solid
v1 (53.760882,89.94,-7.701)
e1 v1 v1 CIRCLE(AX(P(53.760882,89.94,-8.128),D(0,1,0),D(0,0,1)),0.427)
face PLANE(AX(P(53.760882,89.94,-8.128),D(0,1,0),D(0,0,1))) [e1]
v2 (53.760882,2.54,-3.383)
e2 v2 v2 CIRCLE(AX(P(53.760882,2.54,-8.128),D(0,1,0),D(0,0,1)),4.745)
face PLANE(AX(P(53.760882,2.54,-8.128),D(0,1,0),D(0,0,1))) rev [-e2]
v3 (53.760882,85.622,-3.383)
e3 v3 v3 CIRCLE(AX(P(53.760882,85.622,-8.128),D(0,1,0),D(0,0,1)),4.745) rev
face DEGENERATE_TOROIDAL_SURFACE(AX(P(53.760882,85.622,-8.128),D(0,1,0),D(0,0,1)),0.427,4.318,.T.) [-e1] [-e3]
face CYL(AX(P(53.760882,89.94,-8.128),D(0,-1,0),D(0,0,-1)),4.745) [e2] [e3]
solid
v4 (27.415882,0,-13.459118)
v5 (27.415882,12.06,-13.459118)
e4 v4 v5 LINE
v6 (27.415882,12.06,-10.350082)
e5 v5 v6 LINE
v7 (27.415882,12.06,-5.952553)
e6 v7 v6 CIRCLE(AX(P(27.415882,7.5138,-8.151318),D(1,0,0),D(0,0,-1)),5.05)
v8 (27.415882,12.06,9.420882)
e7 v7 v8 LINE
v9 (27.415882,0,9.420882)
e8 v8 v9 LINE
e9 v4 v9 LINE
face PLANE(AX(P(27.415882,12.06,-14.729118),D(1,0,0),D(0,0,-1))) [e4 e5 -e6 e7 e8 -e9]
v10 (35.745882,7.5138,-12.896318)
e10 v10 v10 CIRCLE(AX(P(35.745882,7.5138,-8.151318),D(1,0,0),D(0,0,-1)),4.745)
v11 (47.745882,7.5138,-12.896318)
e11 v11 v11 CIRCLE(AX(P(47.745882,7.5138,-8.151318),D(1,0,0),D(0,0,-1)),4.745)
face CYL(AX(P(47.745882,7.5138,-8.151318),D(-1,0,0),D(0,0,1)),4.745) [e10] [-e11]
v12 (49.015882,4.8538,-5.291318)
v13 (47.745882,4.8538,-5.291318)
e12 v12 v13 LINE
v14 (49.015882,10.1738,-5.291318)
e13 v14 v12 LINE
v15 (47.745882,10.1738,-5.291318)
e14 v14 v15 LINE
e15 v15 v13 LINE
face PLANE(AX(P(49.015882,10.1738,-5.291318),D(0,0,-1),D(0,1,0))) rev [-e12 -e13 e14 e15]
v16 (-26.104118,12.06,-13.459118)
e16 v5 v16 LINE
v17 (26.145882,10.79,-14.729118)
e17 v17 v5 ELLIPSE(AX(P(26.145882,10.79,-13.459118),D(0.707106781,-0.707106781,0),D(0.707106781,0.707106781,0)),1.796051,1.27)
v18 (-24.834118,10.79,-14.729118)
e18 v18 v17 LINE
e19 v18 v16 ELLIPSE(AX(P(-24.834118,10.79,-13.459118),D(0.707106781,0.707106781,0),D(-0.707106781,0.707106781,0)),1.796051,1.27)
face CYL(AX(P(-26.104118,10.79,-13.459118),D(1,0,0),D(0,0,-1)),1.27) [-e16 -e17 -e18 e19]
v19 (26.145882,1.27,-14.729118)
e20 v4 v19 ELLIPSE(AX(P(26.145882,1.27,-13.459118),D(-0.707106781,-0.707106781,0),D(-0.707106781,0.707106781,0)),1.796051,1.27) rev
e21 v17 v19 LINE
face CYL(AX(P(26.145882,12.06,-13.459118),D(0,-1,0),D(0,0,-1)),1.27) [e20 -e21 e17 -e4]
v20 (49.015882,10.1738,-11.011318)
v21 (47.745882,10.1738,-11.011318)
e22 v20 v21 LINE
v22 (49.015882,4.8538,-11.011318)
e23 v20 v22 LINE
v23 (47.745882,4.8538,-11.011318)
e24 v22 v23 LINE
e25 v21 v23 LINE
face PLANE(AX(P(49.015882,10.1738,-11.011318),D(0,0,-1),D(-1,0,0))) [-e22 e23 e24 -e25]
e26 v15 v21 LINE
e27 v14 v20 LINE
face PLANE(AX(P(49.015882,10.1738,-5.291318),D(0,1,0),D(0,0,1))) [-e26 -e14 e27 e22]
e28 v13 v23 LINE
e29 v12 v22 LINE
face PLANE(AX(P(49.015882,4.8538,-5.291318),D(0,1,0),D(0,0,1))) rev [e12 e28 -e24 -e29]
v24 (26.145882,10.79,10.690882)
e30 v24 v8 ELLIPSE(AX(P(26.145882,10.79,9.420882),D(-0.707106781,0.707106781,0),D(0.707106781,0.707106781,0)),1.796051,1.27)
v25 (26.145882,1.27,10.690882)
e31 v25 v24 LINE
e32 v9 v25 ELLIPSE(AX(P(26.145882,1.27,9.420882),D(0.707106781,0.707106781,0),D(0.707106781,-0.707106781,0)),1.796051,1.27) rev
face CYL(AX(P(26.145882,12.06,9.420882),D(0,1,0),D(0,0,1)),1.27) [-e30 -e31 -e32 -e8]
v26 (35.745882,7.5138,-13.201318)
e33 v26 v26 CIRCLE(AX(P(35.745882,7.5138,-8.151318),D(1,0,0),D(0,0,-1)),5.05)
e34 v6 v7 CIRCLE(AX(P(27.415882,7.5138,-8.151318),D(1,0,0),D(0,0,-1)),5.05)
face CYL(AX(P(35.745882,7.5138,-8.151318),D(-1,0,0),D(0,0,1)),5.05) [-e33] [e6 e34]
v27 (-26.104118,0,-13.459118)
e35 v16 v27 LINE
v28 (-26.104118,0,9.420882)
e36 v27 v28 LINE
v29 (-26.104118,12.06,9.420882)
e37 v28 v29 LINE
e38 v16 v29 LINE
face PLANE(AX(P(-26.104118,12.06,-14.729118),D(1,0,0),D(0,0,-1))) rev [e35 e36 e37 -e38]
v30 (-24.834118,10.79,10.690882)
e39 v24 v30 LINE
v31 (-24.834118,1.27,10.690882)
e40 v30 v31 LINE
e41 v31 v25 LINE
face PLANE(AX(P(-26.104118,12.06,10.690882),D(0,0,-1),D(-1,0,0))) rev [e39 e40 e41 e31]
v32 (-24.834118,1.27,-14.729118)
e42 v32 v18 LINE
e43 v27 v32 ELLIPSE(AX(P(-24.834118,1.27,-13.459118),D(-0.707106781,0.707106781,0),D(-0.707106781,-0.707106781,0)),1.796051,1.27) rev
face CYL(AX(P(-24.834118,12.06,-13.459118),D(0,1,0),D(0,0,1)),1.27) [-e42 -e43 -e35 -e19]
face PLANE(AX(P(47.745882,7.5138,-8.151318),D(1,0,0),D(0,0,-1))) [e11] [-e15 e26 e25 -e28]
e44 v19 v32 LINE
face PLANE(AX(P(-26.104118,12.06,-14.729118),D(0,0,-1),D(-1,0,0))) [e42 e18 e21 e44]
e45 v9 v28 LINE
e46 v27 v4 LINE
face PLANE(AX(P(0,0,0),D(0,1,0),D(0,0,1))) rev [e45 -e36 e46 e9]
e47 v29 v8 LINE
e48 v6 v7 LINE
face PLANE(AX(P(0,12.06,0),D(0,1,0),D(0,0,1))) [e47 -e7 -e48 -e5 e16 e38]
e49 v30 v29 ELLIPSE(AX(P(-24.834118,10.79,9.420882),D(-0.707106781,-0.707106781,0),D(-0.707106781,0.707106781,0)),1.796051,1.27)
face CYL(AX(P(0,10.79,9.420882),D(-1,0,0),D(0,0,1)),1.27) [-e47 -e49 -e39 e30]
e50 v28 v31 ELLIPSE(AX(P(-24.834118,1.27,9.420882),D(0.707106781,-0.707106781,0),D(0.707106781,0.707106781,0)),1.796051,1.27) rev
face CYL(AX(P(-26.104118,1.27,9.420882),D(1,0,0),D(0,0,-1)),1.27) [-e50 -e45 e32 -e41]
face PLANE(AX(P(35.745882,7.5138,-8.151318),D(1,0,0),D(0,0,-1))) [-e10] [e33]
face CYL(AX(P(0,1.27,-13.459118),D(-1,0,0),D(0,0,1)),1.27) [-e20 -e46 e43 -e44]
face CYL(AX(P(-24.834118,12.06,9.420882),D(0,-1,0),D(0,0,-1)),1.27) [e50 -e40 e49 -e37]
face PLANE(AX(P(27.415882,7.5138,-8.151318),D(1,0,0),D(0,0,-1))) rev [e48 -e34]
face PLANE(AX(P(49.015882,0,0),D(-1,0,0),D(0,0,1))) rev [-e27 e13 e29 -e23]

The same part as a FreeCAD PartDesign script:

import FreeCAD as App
import Part
import Sketcher
from FreeCAD import Vector
Q = App.Units.Quantity


def edges_at(feature, points):
    """Names of the edges that pass closest to the given points."""
    edges = feature.Shape.Edges
    near = lambda p: min(range(len(edges)), key=lambda i: edges[i].distToShape(Part.Vertex(*p))[0])
    return sorted({f"Edge{near(p) + 1}" for p in points})

doc = App.newDocument("Part")
body = doc.addObject("PartDesign::Body", "Body")

sketch1 = doc.addObject("Sketcher::SketchObject", "Sketch")
body.addObject(sketch1)
sketch1.AttachmentSupport = (doc.XZ_Plane, [""])
sketch1.MapMode = "FlatFace"
sketch1.addGeometry(Part.LineSegment(Vector(-26.104118, -14.729118, 0), Vector(-26.104118, 10.690882, 0)), False)
sketch1.addGeometry(Part.LineSegment(Vector(-26.104118, 10.690882, 0), Vector(27.415882, 10.690882, 0)), False)
sketch1.addGeometry(Part.LineSegment(Vector(27.415882, 10.690882, 0), Vector(27.415882, -14.729118, 0)), False)
sketch1.addGeometry(Part.LineSegment(Vector(27.415882, -14.729118, 0), Vector(-26.104118, -14.729118, 0)), False)
sketch1.addConstraint(Sketcher.Constraint("Coincident", 0, 2, 1, 1))
sketch1.addConstraint(Sketcher.Constraint("Coincident", 1, 2, 2, 1))
sketch1.addConstraint(Sketcher.Constraint("Coincident", 2, 2, 3, 1))
sketch1.addConstraint(Sketcher.Constraint("Coincident", 3, 2, 0, 1))
sketch1.addConstraint(Sketcher.Constraint("Vertical", 0))
sketch1.addConstraint(Sketcher.Constraint("Horizontal", 1))
sketch1.addConstraint(Sketcher.Constraint("Vertical", 2))
sketch1.addConstraint(Sketcher.Constraint("Horizontal", 3))
sketch1.addConstraint(Sketcher.Constraint("DistanceX", 1, 1, 1, 2, Q("53.52 mm")))
sketch1.addConstraint(Sketcher.Constraint("DistanceY", 0, 1, 0, 2, Q("25.42 mm")))
sketch1.addConstraint(Sketcher.Constraint("DistanceX", 0, 2, -1, 1, Q("26.104118 mm")))
sketch1.addConstraint(Sketcher.Constraint("DistanceY", -1, 1, 0, 2, Q("10.690882 mm")))
pad1 = doc.addObject("PartDesign::Pad", "Pad")
body.addObject(pad1)
pad1.Profile = sketch1
pad1.Length = 12.06
pad1.Reversed = True

sketch2 = doc.addObject("Sketcher::SketchObject", "Sketch001")
body.addObject(sketch2)
sketch2.AttachmentSupport = (doc.YZ_Plane, [""])
sketch2.MapMode = "FlatFace"
sketch2.AttachmentOffset = App.Placement(Vector(0, 0, 27.415882), App.Rotation())
sketch2.addGeometry(Part.Circle(Vector(7.5138, -8.151318, 0), Vector(0, 0, 1), 5.05), False)
sketch2.addConstraint(Sketcher.Constraint("Diameter", 0, Q("10.1 mm")))
sketch2.addConstraint(Sketcher.Constraint("DistanceX", -1, 1, 0, 3, Q("7.5138 mm")))
sketch2.addConstraint(Sketcher.Constraint("DistanceY", 0, 3, -1, 1, Q("8.151318 mm")))
pad2 = doc.addObject("PartDesign::Pad", "Pad001")
body.addObject(pad2)
pad2.Profile = sketch2
pad2.Length = 8.33
doc.recompute()

fillet = doc.addObject("PartDesign::Fillet", "Fillet")
body.addObject(fillet)
fillet.Base = (pad2, edges_at(pad2, [
    (0.656, 0, 10.691),
    (0.656, 12.06, 10.691),
    (27.416, 6.03, 10.691),
    (-26.104, 6.03, 10.691),
]))
fillet.Radius = 1.27
doc.recompute()

fillet2 = doc.addObject("PartDesign::Fillet", "Fillet001")
body.addObject(fillet2)
fillet2.Base = (fillet, edges_at(fillet, [
    (0.656, 12.06, -14.729),
    (0.656, 0, -14.729),
    (-26.104, 6.03, -14.729),
    (27.416, 6.03, -14.729),
]))
fillet2.Radius = 1.27

sketch3 = doc.addObject("Sketcher::SketchObject", "Sketch002")
body.addObject(sketch3)
sketch3.AttachmentSupport = (doc.YZ_Plane, [""])
sketch3.MapMode = "FlatFace"
sketch3.AttachmentOffset = App.Placement(Vector(0, 0, 35.745882), App.Rotation())
sketch3.addGeometry(Part.Circle(Vector(7.5138, -8.151318, 0), Vector(0, 0, 1), 4.745), False)
sketch3.addConstraint(Sketcher.Constraint("Diameter", 0, Q("9.49 mm")))
sketch3.addConstraint(Sketcher.Constraint("DistanceX", -1, 1, 0, 3, Q("7.5138 mm")))
sketch3.addConstraint(Sketcher.Constraint("DistanceY", 0, 3, -1, 1, Q("8.151318 mm")))
pad3 = doc.addObject("PartDesign::Pad", "Pad002")
body.addObject(pad3)
pad3.Profile = sketch3
pad3.Length = 12

sketch4 = doc.addObject("Sketcher::SketchObject", "Sketch003")
body.addObject(sketch4)
sketch4.AttachmentSupport = (doc.YZ_Plane, [""])
sketch4.MapMode = "FlatFace"
sketch4.AttachmentOffset = App.Placement(Vector(0, 0, 47.745882), App.Rotation())
sketch4.addGeometry(Part.LineSegment(Vector(10.1738, -5.291318, 0), Vector(4.8538, -5.291318, 0)), False)
sketch4.addGeometry(Part.LineSegment(Vector(4.8538, -5.291318, 0), Vector(4.8538, -11.011318, 0)), False)
sketch4.addGeometry(Part.LineSegment(Vector(4.8538, -11.011318, 0), Vector(10.1738, -11.011318, 0)), False)
sketch4.addGeometry(Part.LineSegment(Vector(10.1738, -11.011318, 0), Vector(10.1738, -5.291318, 0)), False)
sketch4.addConstraint(Sketcher.Constraint("Coincident", 0, 2, 1, 1))
sketch4.addConstraint(Sketcher.Constraint("Coincident", 1, 2, 2, 1))
sketch4.addConstraint(Sketcher.Constraint("Coincident", 2, 2, 3, 1))
sketch4.addConstraint(Sketcher.Constraint("Coincident", 3, 2, 0, 1))
sketch4.addConstraint(Sketcher.Constraint("Horizontal", 0))
sketch4.addConstraint(Sketcher.Constraint("Vertical", 1))
sketch4.addConstraint(Sketcher.Constraint("Horizontal", 2))
sketch4.addConstraint(Sketcher.Constraint("Vertical", 3))
sketch4.addConstraint(Sketcher.Constraint("DistanceX", 0, 2, 0, 1, Q("5.32 mm")))
sketch4.addConstraint(Sketcher.Constraint("DistanceY", 1, 2, 1, 1, Q("5.72 mm")))
sketch4.addConstraint(Sketcher.Constraint("DistanceX", -1, 1, 0, 2, Q("4.8538 mm")))
sketch4.addConstraint(Sketcher.Constraint("DistanceY", 0, 2, -1, 1, Q("5.291318 mm")))
pad4 = doc.addObject("PartDesign::Pad", "Pad003")
body.addObject(pad4)
pad4.Profile = sketch4
pad4.Length = 1.27
body2 = doc.addObject("PartDesign::Body", "Body001")

sketch5 = doc.addObject("Sketcher::SketchObject", "Sketch004")
body2.addObject(sketch5)
sketch5.AttachmentSupport = (doc.getObject("XZ_Plane001"), [""])
sketch5.MapMode = "FlatFace"
sketch5.AttachmentOffset = App.Placement(Vector(0, 0, -2.54), App.Rotation())
sketch5.addGeometry(Part.Circle(Vector(53.760882, -8.128, 0), Vector(0, 0, 1), 4.745), False)
sketch5.addConstraint(Sketcher.Constraint("Diameter", 0, Q("9.49 mm")))
sketch5.addConstraint(Sketcher.Constraint("DistanceY", 0, 3, -1, 1, Q("8.128 mm")))
sketch5.addConstraint(Sketcher.Constraint("DistanceX", -1, 1, 0, 3, Q("53.760882 mm")))
pad5 = doc.addObject("PartDesign::Pad", "Pad004")
body2.addObject(pad5)
pad5.Profile = sketch5
pad5.Length = 87.4
pad5.Reversed = True
doc.recompute()

fillet3 = doc.addObject("PartDesign::Fillet", "Fillet002")
body2.addObject(fillet3)
fillet3.Base = (pad5, edges_at(pad5, [(53.761, 89.94, -12.873)]))
fillet3.Radius = 4.318

doc.recompute()
